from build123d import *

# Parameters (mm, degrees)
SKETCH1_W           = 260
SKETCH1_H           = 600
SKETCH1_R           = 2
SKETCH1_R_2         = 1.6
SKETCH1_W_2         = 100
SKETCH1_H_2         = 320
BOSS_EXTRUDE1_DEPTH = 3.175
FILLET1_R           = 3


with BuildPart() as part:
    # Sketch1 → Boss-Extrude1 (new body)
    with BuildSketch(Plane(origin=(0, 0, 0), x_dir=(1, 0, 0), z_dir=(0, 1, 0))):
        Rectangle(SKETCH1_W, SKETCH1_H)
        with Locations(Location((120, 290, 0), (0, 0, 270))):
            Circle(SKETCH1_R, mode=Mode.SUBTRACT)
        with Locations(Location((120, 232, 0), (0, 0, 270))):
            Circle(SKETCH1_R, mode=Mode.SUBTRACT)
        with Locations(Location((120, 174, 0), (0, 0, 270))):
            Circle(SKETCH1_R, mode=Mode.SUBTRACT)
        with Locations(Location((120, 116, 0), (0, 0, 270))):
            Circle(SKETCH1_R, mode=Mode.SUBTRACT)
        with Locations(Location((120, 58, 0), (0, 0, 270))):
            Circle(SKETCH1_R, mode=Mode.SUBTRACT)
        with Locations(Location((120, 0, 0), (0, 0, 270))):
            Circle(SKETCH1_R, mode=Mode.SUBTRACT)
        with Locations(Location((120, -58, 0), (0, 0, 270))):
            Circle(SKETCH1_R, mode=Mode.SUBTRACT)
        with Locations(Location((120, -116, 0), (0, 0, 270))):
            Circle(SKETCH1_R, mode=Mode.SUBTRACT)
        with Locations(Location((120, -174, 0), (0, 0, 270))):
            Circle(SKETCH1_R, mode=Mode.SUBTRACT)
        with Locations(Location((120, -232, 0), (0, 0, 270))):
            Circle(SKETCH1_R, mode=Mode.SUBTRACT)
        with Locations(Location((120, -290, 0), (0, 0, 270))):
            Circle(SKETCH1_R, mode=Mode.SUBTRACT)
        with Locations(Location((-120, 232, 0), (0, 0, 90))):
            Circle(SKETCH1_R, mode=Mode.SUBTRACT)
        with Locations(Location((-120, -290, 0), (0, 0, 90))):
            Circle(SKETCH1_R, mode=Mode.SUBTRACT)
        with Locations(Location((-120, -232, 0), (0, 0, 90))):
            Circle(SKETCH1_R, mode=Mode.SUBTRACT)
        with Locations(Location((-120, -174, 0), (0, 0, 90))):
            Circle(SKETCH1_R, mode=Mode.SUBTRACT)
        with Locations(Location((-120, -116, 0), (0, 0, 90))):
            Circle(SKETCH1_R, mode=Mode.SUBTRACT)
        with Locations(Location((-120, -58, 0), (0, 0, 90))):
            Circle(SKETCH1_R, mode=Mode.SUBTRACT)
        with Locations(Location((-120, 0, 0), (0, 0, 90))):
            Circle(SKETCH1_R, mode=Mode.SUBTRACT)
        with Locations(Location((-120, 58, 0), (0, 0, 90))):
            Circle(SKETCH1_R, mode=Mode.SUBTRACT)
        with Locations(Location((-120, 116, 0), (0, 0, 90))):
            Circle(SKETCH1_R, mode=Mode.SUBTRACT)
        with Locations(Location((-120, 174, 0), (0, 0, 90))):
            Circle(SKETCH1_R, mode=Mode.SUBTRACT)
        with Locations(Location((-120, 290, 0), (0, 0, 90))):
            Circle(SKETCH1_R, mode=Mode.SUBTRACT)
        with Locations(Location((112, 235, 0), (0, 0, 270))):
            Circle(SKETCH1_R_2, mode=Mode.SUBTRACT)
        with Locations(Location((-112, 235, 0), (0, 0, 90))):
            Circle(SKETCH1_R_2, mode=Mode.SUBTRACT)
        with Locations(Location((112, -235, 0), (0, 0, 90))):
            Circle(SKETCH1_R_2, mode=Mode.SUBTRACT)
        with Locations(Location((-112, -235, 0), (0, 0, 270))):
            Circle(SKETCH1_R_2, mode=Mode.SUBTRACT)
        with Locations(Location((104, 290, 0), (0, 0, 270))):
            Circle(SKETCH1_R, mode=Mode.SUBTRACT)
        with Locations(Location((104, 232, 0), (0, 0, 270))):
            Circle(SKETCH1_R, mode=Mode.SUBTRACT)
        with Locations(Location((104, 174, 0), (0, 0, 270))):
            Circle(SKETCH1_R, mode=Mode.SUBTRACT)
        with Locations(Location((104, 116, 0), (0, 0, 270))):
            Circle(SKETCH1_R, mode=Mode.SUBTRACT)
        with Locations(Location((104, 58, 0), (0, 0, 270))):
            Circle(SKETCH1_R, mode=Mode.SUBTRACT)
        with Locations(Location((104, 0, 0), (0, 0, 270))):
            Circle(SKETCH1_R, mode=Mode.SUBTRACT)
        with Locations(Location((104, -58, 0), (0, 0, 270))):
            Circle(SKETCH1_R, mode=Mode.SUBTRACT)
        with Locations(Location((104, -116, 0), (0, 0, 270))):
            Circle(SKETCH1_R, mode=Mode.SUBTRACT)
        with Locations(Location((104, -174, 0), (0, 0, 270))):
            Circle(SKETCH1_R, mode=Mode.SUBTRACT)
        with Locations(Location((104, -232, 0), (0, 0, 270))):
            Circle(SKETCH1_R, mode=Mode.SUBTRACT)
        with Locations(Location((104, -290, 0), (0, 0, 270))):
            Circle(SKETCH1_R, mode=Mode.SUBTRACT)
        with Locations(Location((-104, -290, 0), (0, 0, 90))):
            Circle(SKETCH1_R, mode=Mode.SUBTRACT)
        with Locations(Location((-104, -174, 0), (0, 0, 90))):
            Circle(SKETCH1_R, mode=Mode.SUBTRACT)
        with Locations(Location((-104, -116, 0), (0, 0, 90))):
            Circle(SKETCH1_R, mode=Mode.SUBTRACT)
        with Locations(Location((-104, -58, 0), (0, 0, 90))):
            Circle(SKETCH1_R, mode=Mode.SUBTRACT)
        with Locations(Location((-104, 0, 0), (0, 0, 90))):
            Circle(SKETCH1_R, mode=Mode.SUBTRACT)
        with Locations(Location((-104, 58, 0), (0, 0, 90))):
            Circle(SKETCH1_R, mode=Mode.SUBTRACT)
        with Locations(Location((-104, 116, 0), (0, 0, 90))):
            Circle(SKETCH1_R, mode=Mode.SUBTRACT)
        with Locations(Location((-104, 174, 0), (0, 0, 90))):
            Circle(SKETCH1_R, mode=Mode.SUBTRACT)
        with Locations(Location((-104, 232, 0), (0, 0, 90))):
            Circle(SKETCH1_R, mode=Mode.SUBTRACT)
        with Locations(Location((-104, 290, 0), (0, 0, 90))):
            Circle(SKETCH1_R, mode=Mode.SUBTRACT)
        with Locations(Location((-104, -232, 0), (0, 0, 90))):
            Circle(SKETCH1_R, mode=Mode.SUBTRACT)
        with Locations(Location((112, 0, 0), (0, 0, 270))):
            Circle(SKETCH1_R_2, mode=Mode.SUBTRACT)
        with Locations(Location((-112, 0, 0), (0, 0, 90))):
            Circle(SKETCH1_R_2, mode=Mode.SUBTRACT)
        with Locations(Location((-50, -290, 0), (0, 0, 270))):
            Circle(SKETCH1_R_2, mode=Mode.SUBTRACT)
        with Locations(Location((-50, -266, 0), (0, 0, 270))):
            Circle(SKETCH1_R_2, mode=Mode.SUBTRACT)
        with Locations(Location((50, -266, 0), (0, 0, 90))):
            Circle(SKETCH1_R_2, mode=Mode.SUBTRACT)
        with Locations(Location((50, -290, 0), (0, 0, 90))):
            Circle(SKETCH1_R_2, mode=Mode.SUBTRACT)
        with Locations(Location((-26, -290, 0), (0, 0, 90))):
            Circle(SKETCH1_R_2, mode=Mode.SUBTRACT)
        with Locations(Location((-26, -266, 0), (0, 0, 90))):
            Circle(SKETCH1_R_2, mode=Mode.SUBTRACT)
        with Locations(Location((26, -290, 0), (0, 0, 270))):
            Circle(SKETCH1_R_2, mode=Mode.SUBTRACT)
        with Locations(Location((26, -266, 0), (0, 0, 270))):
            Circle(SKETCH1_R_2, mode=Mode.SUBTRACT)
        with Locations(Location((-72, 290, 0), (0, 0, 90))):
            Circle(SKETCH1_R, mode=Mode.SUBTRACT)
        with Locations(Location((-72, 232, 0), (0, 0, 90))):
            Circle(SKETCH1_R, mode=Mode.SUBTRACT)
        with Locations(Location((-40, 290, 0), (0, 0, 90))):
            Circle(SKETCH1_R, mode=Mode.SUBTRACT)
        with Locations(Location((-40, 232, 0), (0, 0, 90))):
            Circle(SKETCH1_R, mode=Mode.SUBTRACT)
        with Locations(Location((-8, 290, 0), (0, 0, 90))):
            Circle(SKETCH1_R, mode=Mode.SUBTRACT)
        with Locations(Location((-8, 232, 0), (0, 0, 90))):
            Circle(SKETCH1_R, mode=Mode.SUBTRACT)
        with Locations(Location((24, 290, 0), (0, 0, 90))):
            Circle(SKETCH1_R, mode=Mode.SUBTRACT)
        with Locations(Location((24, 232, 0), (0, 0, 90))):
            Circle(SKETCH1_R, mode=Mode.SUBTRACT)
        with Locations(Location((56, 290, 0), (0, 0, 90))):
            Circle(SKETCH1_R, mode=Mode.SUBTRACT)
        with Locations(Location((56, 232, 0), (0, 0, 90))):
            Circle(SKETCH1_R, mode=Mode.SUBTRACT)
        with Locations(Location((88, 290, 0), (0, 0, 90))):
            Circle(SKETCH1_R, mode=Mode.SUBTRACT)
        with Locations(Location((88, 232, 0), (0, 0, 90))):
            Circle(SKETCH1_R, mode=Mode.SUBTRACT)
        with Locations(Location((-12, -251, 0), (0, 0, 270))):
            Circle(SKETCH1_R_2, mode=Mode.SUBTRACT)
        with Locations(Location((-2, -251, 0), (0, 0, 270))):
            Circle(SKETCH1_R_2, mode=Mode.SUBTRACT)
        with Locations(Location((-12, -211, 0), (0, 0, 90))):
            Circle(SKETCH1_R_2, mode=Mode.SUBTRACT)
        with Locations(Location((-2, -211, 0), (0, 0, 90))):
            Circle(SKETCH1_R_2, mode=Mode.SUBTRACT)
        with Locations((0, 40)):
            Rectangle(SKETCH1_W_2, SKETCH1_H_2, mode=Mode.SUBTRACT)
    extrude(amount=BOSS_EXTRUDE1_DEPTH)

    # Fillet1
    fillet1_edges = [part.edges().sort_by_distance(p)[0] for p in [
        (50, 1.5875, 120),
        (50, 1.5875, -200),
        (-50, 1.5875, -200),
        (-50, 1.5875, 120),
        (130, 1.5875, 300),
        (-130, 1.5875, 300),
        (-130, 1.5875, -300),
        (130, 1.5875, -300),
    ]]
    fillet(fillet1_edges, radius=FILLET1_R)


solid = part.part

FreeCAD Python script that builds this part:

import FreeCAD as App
import Part
import Sketcher

V = App.Vector


def edges_at(feature, points):
    """Names of the edges that pass closest to the given points."""
    edges = feature.Shape.Edges
    near = lambda p: min(range(len(edges)), key=lambda i: edges[i].distToShape(Part.Vertex(*p))[0])
    return sorted({f"Edge{near(p) + 1}" for p in points})

doc = App.newDocument("Part")
body = doc.addObject("PartDesign::Body", "Body")

# Sketch on XZ plane
sketch1 = body.newObject("Sketcher::SketchObject", "Sketch")
sketch1.AttachmentSupport = (doc.getObject("XZ_Plane"), [""])
sketch1.MapMode = "FlatFace"
sketch1.addGeometry([
    Part.LineSegment(V(-130, -300, 0), V(-130, 300, 0)),  # 0
    Part.LineSegment(V(-130, 300, 0), V(130, 300, 0)),  # 1
    Part.LineSegment(V(130, 300, 0), V(130, -300, 0)),  # 2
    Part.LineSegment(V(130, -300, 0), V(-130, -300, 0)),  # 3
    Part.Circle(V(-120, 290, 0), V(0, 0, 1), 2),  # 4
    Part.Circle(V(-104, 290, 0), V(0, 0, 1), 2),  # 5
    Part.Circle(V(-120, 232, 0), V(0, 0, 1), 2),  # 6
    Part.Circle(V(-112, 235, 0), V(0, 0, 1), 1.6),  # 7
    Part.Circle(V(-104, 232, 0), V(0, 0, 1), 2),  # 8
    Part.Circle(V(-120, 174, 0), V(0, 0, 1), 2),  # 9
    Part.Circle(V(-104, 174, 0), V(0, 0, 1), 2),  # 10
    Part.Circle(V(-50, 290, 0), V(0, 0, 1), 1.6),  # 11
    Part.Circle(V(-50, 266, 0), V(0, 0, 1), 1.6),  # 12
    Part.Circle(V(-26, 290, 0), V(0, 0, 1), 1.6),  # 13
    Part.Circle(V(-26, 266, 0), V(0, 0, 1), 1.6),  # 14
    Part.Circle(V(-12, 251, 0), V(0, 0, 1), 1.6),  # 15
    Part.Circle(V(-2, 251, 0), V(0, 0, 1), 1.6),  # 16
    Part.Circle(V(-12, 211, 0), V(0, 0, 1), 1.6),  # 17
    Part.Circle(V(-2, 211, 0), V(0, 0, 1), 1.6),  # 18
    Part.Circle(V(-120, 116, 0), V(0, 0, 1), 2),  # 19
    Part.Circle(V(-104, 116, 0), V(0, 0, 1), 2),  # 20
    Part.Circle(V(-120, 58, 0), V(0, 0, 1), 2),  # 21
    Part.Circle(V(-104, 58, 0), V(0, 0, 1), 2),  # 22
    Part.Circle(V(26, 290, 0), V(0, 0, 1), 1.6),  # 23
    Part.Circle(V(26, 266, 0), V(0, 0, 1), 1.6),  # 24
    Part.Circle(V(50, 290, 0), V(0, 0, 1), 1.6),  # 25
    Part.Circle(V(50, 266, 0), V(0, 0, 1), 1.6),  # 26
    Part.Circle(V(104, 290, 0), V(0, 0, 1), 2),  # 27
    Part.Circle(V(120, 290, 0), V(0, 0, 1), 2),  # 28
    Part.Circle(V(104, 232, 0), V(0, 0, 1), 2),  # 29
    Part.Circle(V(112, 235, 0), V(0, 0, 1), 1.6),  # 30
    Part.Circle(V(120, 232, 0), V(0, 0, 1), 2),  # 31
    Part.Circle(V(104, 174, 0), V(0, 0, 1), 2),  # 32
    Part.Circle(V(120, 174, 0), V(0, 0, 1), 2),  # 33
    Part.Circle(V(104, 116, 0), V(0, 0, 1), 2),  # 34
    Part.Circle(V(120, 116, 0), V(0, 0, 1), 2),  # 35
    Part.Circle(V(104, 58, 0), V(0, 0, 1), 2),  # 36
    Part.Circle(V(120, 58, 0), V(0, 0, 1), 2),  # 37
    Part.Circle(V(-120, 0, 0), V(0, 0, 1), 2),  # 38
    Part.Circle(V(-112, 0, 0), V(0, 0, 1), 1.6),  # 39
    Part.Circle(V(-104, 0, 0), V(0, 0, 1), 2),  # 40
    Part.Circle(V(-120, -58, 0), V(0, 0, 1), 2),  # 41
    Part.Circle(V(-104, -58, 0), V(0, 0, 1), 2),  # 42
    Part.Circle(V(-120, -116, 0), V(0, 0, 1), 2),  # 43
    Part.Circle(V(-104, -116, 0), V(0, 0, 1), 2),  # 44
    Part.Circle(V(-120, -174, 0), V(0, 0, 1), 2),  # 45
    Part.Circle(V(-104, -174, 0), V(0, 0, 1), 2),  # 46
    Part.Circle(V(-120, -232, 0), V(0, 0, 1), 2),  # 47
    Part.Circle(V(-112, -235, 0), V(0, 0, 1), 1.6),  # 48
    Part.Circle(V(-104, -232, 0), V(0, 0, 1), 2),  # 49
    Part.Circle(V(-120, -290, 0), V(0, 0, 1), 2),  # 50
    Part.Circle(V(-104, -290, 0), V(0, 0, 1), 2),  # 51
    Part.Circle(V(-72, -232, 0), V(0, 0, 1), 2),  # 52
    Part.Circle(V(-72, -290, 0), V(0, 0, 1), 2),  # 53
    Part.Circle(V(-40, -232, 0), V(0, 0, 1), 2),  # 54
    Part.Circle(V(-40, -290, 0), V(0, 0, 1), 2),  # 55
    Part.Circle(V(-8, -232, 0), V(0, 0, 1), 2),  # 56
    Part.Circle(V(-8, -290, 0), V(0, 0, 1), 2),  # 57
    Part.LineSegment(V(50, 120, 0), V(-50, 120, 0)),  # 58
    Part.LineSegment(V(-50, 120, 0), V(-50, -200, 0)),  # 59
    Part.LineSegment(V(-50, -200, 0), V(50, -200, 0)),  # 60
    Part.LineSegment(V(50, -200, 0), V(50, 120, 0)),  # 61
    Part.Circle(V(104, 0, 0), V(0, 0, 1), 2),  # 62
    Part.Circle(V(112, 0, 0), V(0, 0, 1), 1.6),  # 63
    Part.Circle(V(120, 0, 0), V(0, 0, 1), 2),  # 64
    Part.Circle(V(104, -58, 0), V(0, 0, 1), 2),  # 65
    Part.Circle(V(120, -58, 0), V(0, 0, 1), 2),  # 66
    Part.Circle(V(104, -116, 0), V(0, 0, 1), 2),  # 67
    Part.Circle(V(120, -116, 0), V(0, 0, 1), 2),  # 68
    Part.Circle(V(24, -232, 0), V(0, 0, 1), 2),  # 69
    Part.Circle(V(24, -290, 0), V(0, 0, 1), 2),  # 70
    Part.Circle(V(56, -232, 0), V(0, 0, 1), 2),  # 71
    Part.Circle(V(56, -290, 0), V(0, 0, 1), 2),  # 72
    Part.Circle(V(104, -174, 0), V(0, 0, 1), 2),  # 73
    Part.Circle(V(120, -174, 0), V(0, 0, 1), 2),  # 74
    Part.Circle(V(88, -232, 0), V(0, 0, 1), 2),  # 75
    Part.Circle(V(88, -290, 0), V(0, 0, 1), 2),  # 76
    Part.Circle(V(104, -232, 0), V(0, 0, 1), 2),  # 77
    Part.Circle(V(112, -235, 0), V(0, 0, 1), 1.6),  # 78
    Part.Circle(V(120, -232, 0), V(0, 0, 1), 2),  # 79
    Part.Circle(V(104, -290, 0), V(0, 0, 1), 2),  # 80
    Part.Circle(V(120, -290, 0), V(0, 0, 1), 2),  # 81
], False)
sketch1.addConstraint([
    Sketcher.Constraint("Coincident", 0, 2, 1, 1),
    Sketcher.Constraint("Coincident", 1, 2, 2, 1),
    Sketcher.Constraint("Coincident", 2, 2, 3, 1),
    Sketcher.Constraint("Coincident", 3, 2, 0, 1),
    Sketcher.Constraint("Coincident", 58, 2, 59, 1),
    Sketcher.Constraint("Coincident", 59, 2, 60, 1),
    Sketcher.Constraint("Coincident", 60, 2, 61, 1),
    Sketcher.Constraint("Coincident", 61, 2, 58, 1),
    Sketcher.Constraint("Vertical", 0),
    Sketcher.Constraint("Horizontal", 1),
    Sketcher.Constraint("Vertical", 2),
    Sketcher.Constraint("Horizontal", 3),
    Sketcher.Constraint("Horizontal", 58),
    Sketcher.Constraint("Vertical", 59),
    Sketcher.Constraint("Horizontal", 60),
    Sketcher.Constraint("Vertical", 61),
    Sketcher.Constraint("Equal", 4, 5),
    Sketcher.Constraint("Equal", 5, 6),
    Sketcher.Constraint("Equal", 6, 8),
    Sketcher.Constraint("Equal", 8, 9),
    Sketcher.Constraint("Equal", 9, 10),
    Sketcher.Constraint("Equal", 7, 11),
    Sketcher.Constraint("Equal", 11, 12),
    Sketcher.Constraint("Equal", 12, 13),
    Sketcher.Constraint("Equal", 13, 14),
    Sketcher.Constraint("Equal", 14, 15),
    Sketcher.Constraint("Equal", 15, 16),
    Sketcher.Constraint("Equal", 16, 17),
    Sketcher.Constraint("Equal", 17, 18),
    Sketcher.Constraint("Equal", 10, 19),
    Sketcher.Constraint("Equal", 19, 20),
    Sketcher.Constraint("Equal", 20, 21),
    Sketcher.Constraint("Equal", 21, 22),
    Sketcher.Constraint("Equal", 18, 23),
    Sketcher.Constraint("Equal", 23, 24),
    Sketcher.Constraint("Equal", 24, 25),
    Sketcher.Constraint("Equal", 25, 26),
    Sketcher.Constraint("Equal", 22, 27),
    Sketcher.Constraint("Equal", 27, 28),
    Sketcher.Constraint("Equal", 28, 29),
    Sketcher.Constraint("Equal", 26, 30),
    Sketcher.Constraint("Equal", 29, 31),
    Sketcher.Constraint("Equal", 31, 32),
    Sketcher.Constraint("Equal", 32, 33),
    Sketcher.Constraint("Equal", 33, 34),
    Sketcher.Constraint("Equal", 34, 35),
    Sketcher.Constraint("Equal", 35, 36),
    Sketcher.Constraint("Equal", 36, 37),
    Sketcher.Constraint("Equal", 37, 38),
    Sketcher.Constraint("Equal", 30, 39),
    Sketcher.Constraint("Equal", 38, 40),
    Sketcher.Constraint("Equal", 40, 41),
    Sketcher.Constraint("Equal", 41, 42),
    Sketcher.Constraint("Equal", 42, 43),
    Sketcher.Constraint("Equal", 43, 44),
    Sketcher.Constraint("Equal", 44, 45),
    Sketcher.Constraint("Equal", 45, 46),
    Sketcher.Constraint("Equal", 46, 47),
    Sketcher.Constraint("Equal", 39, 48),
    Sketcher.Constraint("Equal", 47, 49),
    Sketcher.Constraint("Equal", 49, 50),
    Sketcher.Constraint("Equal", 50, 51),
    Sketcher.Constraint("Equal", 51, 52),
    Sketcher.Constraint("Equal", 52, 53),
    Sketcher.Constraint("Equal", 53, 54),
    Sketcher.Constraint("Equal", 54, 55),
    Sketcher.Constraint("Equal", 55, 56),
    Sketcher.Constraint("Equal", 56, 57),
    Sketcher.Constraint("Equal", 57, 62),
    Sketcher.Constraint("Equal", 48, 63),
    Sketcher.Constraint("Equal", 62, 64),
    Sketcher.Constraint("Equal", 64, 65),
    Sketcher.Constraint("Equal", 65, 66),
    Sketcher.Constraint("Equal", 66, 67),
    Sketcher.Constraint("Equal", 67, 68),
    Sketcher.Constraint("Equal", 68, 69),
    Sketcher.Constraint("Equal", 69, 70),
    Sketcher.Constraint("Equal", 70, 71),
    Sketcher.Constraint("Equal", 71, 72),
    Sketcher.Constraint("Equal", 72, 73),
    Sketcher.Constraint("Equal", 73, 74),
    Sketcher.Constraint("Equal", 74, 75),
    Sketcher.Constraint("Equal", 75, 76),
    Sketcher.Constraint("Equal", 76, 77),
    Sketcher.Constraint("Equal", 63, 78),
    Sketcher.Constraint("Equal", 77, 79),
    Sketcher.Constraint("Equal", 79, 80),
    Sketcher.Constraint("Equal", 80, 81),
    Sketcher.Constraint("Symmetric", 37, 3, 41, 3, -1, 1),
    Sketcher.Constraint("Symmetric", 36, 3, 42, 3, -1, 1),
    Sketcher.Constraint("Symmetric", 35, 3, 43, 3, -1, 1),
    Sketcher.Constraint("Symmetric", 34, 3, 44, 3, -1, 1),
    Sketcher.Constraint("Symmetric", 33, 3, 45, 3, -1, 1),
    Sketcher.Constraint("Symmetric", 32, 3, 46, 3, -1, 1),
    Sketcher.Constraint("Symmetric", 31, 3, 47, 3, -1, 1),
    Sketcher.Constraint("Symmetric", 30, 3, 48, 3, -1, 1),
    Sketcher.Constraint("Symmetric", 29, 3, 49, 3, -1, 1),
    Sketcher.Constraint("Symmetric", 28, 3, 50, 3, -1, 1),
    Sketcher.Constraint("Symmetric", 27, 3, 51, 3, -1, 1),
    Sketcher.Constraint("Symmetric", 40, 3, 62, 3, -1, 1),
    Sketcher.Constraint("Symmetric", 39, 3, 63, 3, -1, 1),
    Sketcher.Constraint("Symmetric", 38, 3, 64, 3, -1, 1),
    Sketcher.Constraint("Symmetric", 22, 3, 65, 3, -1, 1),
    Sketcher.Constraint("Symmetric", 21, 3, 66, 3, -1, 1),
    Sketcher.Constraint("Symmetric", 20, 3, 67, 3, -1, 1),
    Sketcher.Constraint("Symmetric", 19, 3, 68, 3, -1, 1),
    Sketcher.Constraint("Symmetric", 10, 3, 73, 3, -1, 1),
    Sketcher.Constraint("Symmetric", 9, 3, 74, 3, -1, 1),
    Sketcher.Constraint("Symmetric", 8, 3, 77, 3, -1, 1),
    Sketcher.Constraint("Symmetric", 7, 3, 78, 3, -1, 1),
    Sketcher.Constraint("Symmetric", 6, 3, 79, 3, -1, 1),
    Sketcher.Constraint("Symmetric", 5, 3, 80, 3, -1, 1),
    Sketcher.Constraint("Symmetric", 4, 3, 81, 3, -1, 1),
    Sketcher.Constraint("Symmetric", 0, 2, 2, 2, -1, 1),
    Sketcher.Constraint("Symmetric", 13, 3, 23, 3, -2),
    Sketcher.Constraint("Symmetric", 14, 3, 24, 3, -2),
    Sketcher.Constraint("Symmetric", 11, 3, 25, 3, -2),
    Sketcher.Constraint("Symmetric", 12, 3, 26, 3, -2),
    Sketcher.Constraint("Symmetric", 5, 3, 27, 3, -2),
    Sketcher.Constraint("Symmetric", 4, 3, 28, 3, -2),
    Sketcher.Constraint("Symmetric", 8, 3, 29, 3, -2),
    Sketcher.Constraint("Symmetric", 7, 3, 30, 3, -2),
    Sketcher.Constraint("Symmetric", 6, 3, 31, 3, -2),
    Sketcher.Constraint("Symmetric", 10, 3, 32, 3, -2),
    Sketcher.Constraint("Symmetric", 9, 3, 33, 3, -2),
    Sketcher.Constraint("Symmetric", 20, 3, 34, 3, -2),
    Sketcher.Constraint("Symmetric", 19, 3, 35, 3, -2),
    Sketcher.Constraint("Symmetric", 22, 3, 36, 3, -2),
    Sketcher.Constraint("Symmetric", 21, 3, 37, 3, -2),
    Sketcher.Constraint("PointOnObject", 38, 3, -1),
    Sketcher.Constraint("PointOnObject", 39, 3, -1),
    Sketcher.Constraint("PointOnObject", 40, 3, -1),
    Sketcher.Constraint("Horizontal", 4, 3, 5, 3),
    Sketcher.Constraint("Horizontal", 6, 3, 8, 3),
    Sketcher.Constraint("Horizontal", 9, 3, 10, 3),
    Sketcher.Constraint("Horizontal", 5, 3, 11, 3),
    Sketcher.Constraint("Horizontal", 11, 3, 13, 3),
    Sketcher.Constraint("Horizontal", 12, 3, 14, 3),
    Sketcher.Constraint("Horizontal", 15, 3, 16, 3),
    Sketcher.Constraint("Horizontal", 17, 3, 18, 3),
    Sketcher.Constraint("Horizontal", 19, 3, 20, 3),
    Sketcher.Constraint("Horizontal", 21, 3, 22, 3),
    Sketcher.Constraint("Horizontal", 49, 3, 52, 3),
    Sketcher.Constraint("Horizontal", 51, 3, 53, 3),
    Sketcher.Constraint("Horizontal", 52, 3, 54, 3),
    Sketcher.Constraint("Horizontal", 53, 3, 55, 3),
    Sketcher.Constraint("Horizontal", 54, 3, 56, 3),
    Sketcher.Constraint("Horizontal", 55, 3, 57, 3),
    Sketcher.Constraint("Horizontal", 56, 3, 69, 3),
    Sketcher.Constraint("Horizontal", 57, 3, 70, 3),
    Sketcher.Constraint("Horizontal", 69, 3, 71, 3),
    Sketcher.Constraint("Horizontal", 70, 3, 72, 3),
    Sketcher.Constraint("Horizontal", 71, 3, 75, 3),
    Sketcher.Constraint("Horizontal", 72, 3, 76, 3),
    Sketcher.Constraint("Vertical", 4, 3, 6, 3),
    Sketcher.Constraint("Vertical", 5, 3, 8, 3),
    Sketcher.Constraint("Vertical", 6, 3, 9, 3),
    Sketcher.Constraint("Vertical", 8, 3, 10, 3),
    Sketcher.Constraint("Vertical", 11, 3, 12, 3),
    Sketcher.Constraint("Vertical", 13, 3, 14, 3),
    Sketcher.Constraint("Vertical", 15, 3, 17, 3),
    Sketcher.Constraint("Vertical", 16, 3, 18, 3),
    Sketcher.Constraint("Vertical", 9, 3, 19, 3),
    Sketcher.Constraint("Vertical", 10, 3, 20, 3),
    Sketcher.Constraint("Vertical", 19, 3, 21, 3),
    Sketcher.Constraint("Vertical", 20, 3, 22, 3),
    Sketcher.Constraint("Vertical", 21, 3, 38, 3),
    Sketcher.Constraint("Vertical", 7, 3, 39, 3),
    Sketcher.Constraint("Vertical", 22, 3, 40, 3),
    Sketcher.Constraint("Vertical", 52, 3, 53, 3),
    Sketcher.Constraint("Vertical", 54, 3, 55, 3),
    Sketcher.Constraint("Vertical", 56, 3, 57, 3),
    Sketcher.Constraint("Vertical", 69, 3, 70, 3),
    Sketcher.Constraint("Vertical", 71, 3, 72, 3),
    Sketcher.Constraint("Vertical", 75, 3, 76, 3),
    Sketcher.Constraint("Vertical", 12, 3, 58, 2),
    Sketcher.Constraint("Vertical", 26, 3, 60, 2),
    Sketcher.Constraint("Diameter", 4, 4.0),
    Sketcher.Constraint("Diameter", 7, 3.2),
    Sketcher.Constraint("DistanceX", 1, 1, 1, 2, 260.0),
    Sketcher.Constraint("DistanceX", 58, 2, 58, 1, 100.0),
    Sketcher.Constraint("DistanceY", 0, 1, 0, 2, 600.0),
    Sketcher.Constraint("DistanceY", 59, 2, 59, 1, 320.0),
    Sketcher.Constraint("DistanceX", 4, 3, -1, 1, 120.0),
    Sketcher.Constraint("DistanceY", -1, 1, 4, 3, 290.0),
    Sketcher.Constraint("DistanceX", 5, 3, -1, 1, 104.0),
    Sketcher.Constraint("DistanceY", -1, 1, 6, 3, 232.0),
    Sketcher.Constraint("DistanceX", 7, 3, -1, 1, 112.0),
    Sketcher.Constraint("DistanceY", -1, 1, 7, 3, 235.0),
    Sketcher.Constraint("DistanceY", -1, 1, 9, 3, 174.0),
    Sketcher.Constraint("DistanceY", -1, 1, 12, 3, 266.0),
    Sketcher.Constraint("DistanceX", 13, 3, -1, 1, 26.0),
    Sketcher.Constraint("DistanceX", 15, 3, -1, 1, 12.0),
    Sketcher.Constraint("DistanceY", -1, 1, 15, 3, 251.0),
    Sketcher.Constraint("DistanceX", 16, 3, -1, 1, 2.0),
    Sketcher.Constraint("DistanceY", -1, 1, 17, 3, 211.0),
    Sketcher.Constraint("DistanceY", -1, 1, 19, 3, 116.0),
    Sketcher.Constraint("DistanceY", -1, 1, 21, 3, 58.0),
    Sketcher.Constraint("DistanceX", 52, 3, -1, 1, 72.0),
    Sketcher.Constraint("DistanceX", 54, 3, -1, 1, 40.0),
    Sketcher.Constraint("DistanceX", 56, 3, -1, 1, 8.0),
    Sketcher.Constraint("DistanceX", -1, 1, 69, 3, 24.0),
    Sketcher.Constraint("DistanceX", -1, 1, 71, 3, 56.0),
    Sketcher.Constraint("DistanceX", -1, 1, 75, 3, 88.0),
    Sketcher.Constraint("DistanceY", -1, 1, 58, 2, 120.0),
])
pad1 = body.newObject("PartDesign::Pad", "Pad")
pad1.Profile = sketch1
pad1.Length = 3.175
pad1.Reversed = True
doc.recompute()

fillet = body.newObject("PartDesign::Fillet", "Fillet")
fillet.Base = (pad1, edges_at(pad1, [
    (50, 1.587, 120),
    (50, 1.587, -200),
    (-50, 1.587, -200),
    (-50, 1.587, 120),
    (130, 1.587, 300),
    (-130, 1.587, 300),
    (-130, 1.587, -300),
    (130, 1.587, -300),
]))
fillet.Radius = 3

doc.recompute()
